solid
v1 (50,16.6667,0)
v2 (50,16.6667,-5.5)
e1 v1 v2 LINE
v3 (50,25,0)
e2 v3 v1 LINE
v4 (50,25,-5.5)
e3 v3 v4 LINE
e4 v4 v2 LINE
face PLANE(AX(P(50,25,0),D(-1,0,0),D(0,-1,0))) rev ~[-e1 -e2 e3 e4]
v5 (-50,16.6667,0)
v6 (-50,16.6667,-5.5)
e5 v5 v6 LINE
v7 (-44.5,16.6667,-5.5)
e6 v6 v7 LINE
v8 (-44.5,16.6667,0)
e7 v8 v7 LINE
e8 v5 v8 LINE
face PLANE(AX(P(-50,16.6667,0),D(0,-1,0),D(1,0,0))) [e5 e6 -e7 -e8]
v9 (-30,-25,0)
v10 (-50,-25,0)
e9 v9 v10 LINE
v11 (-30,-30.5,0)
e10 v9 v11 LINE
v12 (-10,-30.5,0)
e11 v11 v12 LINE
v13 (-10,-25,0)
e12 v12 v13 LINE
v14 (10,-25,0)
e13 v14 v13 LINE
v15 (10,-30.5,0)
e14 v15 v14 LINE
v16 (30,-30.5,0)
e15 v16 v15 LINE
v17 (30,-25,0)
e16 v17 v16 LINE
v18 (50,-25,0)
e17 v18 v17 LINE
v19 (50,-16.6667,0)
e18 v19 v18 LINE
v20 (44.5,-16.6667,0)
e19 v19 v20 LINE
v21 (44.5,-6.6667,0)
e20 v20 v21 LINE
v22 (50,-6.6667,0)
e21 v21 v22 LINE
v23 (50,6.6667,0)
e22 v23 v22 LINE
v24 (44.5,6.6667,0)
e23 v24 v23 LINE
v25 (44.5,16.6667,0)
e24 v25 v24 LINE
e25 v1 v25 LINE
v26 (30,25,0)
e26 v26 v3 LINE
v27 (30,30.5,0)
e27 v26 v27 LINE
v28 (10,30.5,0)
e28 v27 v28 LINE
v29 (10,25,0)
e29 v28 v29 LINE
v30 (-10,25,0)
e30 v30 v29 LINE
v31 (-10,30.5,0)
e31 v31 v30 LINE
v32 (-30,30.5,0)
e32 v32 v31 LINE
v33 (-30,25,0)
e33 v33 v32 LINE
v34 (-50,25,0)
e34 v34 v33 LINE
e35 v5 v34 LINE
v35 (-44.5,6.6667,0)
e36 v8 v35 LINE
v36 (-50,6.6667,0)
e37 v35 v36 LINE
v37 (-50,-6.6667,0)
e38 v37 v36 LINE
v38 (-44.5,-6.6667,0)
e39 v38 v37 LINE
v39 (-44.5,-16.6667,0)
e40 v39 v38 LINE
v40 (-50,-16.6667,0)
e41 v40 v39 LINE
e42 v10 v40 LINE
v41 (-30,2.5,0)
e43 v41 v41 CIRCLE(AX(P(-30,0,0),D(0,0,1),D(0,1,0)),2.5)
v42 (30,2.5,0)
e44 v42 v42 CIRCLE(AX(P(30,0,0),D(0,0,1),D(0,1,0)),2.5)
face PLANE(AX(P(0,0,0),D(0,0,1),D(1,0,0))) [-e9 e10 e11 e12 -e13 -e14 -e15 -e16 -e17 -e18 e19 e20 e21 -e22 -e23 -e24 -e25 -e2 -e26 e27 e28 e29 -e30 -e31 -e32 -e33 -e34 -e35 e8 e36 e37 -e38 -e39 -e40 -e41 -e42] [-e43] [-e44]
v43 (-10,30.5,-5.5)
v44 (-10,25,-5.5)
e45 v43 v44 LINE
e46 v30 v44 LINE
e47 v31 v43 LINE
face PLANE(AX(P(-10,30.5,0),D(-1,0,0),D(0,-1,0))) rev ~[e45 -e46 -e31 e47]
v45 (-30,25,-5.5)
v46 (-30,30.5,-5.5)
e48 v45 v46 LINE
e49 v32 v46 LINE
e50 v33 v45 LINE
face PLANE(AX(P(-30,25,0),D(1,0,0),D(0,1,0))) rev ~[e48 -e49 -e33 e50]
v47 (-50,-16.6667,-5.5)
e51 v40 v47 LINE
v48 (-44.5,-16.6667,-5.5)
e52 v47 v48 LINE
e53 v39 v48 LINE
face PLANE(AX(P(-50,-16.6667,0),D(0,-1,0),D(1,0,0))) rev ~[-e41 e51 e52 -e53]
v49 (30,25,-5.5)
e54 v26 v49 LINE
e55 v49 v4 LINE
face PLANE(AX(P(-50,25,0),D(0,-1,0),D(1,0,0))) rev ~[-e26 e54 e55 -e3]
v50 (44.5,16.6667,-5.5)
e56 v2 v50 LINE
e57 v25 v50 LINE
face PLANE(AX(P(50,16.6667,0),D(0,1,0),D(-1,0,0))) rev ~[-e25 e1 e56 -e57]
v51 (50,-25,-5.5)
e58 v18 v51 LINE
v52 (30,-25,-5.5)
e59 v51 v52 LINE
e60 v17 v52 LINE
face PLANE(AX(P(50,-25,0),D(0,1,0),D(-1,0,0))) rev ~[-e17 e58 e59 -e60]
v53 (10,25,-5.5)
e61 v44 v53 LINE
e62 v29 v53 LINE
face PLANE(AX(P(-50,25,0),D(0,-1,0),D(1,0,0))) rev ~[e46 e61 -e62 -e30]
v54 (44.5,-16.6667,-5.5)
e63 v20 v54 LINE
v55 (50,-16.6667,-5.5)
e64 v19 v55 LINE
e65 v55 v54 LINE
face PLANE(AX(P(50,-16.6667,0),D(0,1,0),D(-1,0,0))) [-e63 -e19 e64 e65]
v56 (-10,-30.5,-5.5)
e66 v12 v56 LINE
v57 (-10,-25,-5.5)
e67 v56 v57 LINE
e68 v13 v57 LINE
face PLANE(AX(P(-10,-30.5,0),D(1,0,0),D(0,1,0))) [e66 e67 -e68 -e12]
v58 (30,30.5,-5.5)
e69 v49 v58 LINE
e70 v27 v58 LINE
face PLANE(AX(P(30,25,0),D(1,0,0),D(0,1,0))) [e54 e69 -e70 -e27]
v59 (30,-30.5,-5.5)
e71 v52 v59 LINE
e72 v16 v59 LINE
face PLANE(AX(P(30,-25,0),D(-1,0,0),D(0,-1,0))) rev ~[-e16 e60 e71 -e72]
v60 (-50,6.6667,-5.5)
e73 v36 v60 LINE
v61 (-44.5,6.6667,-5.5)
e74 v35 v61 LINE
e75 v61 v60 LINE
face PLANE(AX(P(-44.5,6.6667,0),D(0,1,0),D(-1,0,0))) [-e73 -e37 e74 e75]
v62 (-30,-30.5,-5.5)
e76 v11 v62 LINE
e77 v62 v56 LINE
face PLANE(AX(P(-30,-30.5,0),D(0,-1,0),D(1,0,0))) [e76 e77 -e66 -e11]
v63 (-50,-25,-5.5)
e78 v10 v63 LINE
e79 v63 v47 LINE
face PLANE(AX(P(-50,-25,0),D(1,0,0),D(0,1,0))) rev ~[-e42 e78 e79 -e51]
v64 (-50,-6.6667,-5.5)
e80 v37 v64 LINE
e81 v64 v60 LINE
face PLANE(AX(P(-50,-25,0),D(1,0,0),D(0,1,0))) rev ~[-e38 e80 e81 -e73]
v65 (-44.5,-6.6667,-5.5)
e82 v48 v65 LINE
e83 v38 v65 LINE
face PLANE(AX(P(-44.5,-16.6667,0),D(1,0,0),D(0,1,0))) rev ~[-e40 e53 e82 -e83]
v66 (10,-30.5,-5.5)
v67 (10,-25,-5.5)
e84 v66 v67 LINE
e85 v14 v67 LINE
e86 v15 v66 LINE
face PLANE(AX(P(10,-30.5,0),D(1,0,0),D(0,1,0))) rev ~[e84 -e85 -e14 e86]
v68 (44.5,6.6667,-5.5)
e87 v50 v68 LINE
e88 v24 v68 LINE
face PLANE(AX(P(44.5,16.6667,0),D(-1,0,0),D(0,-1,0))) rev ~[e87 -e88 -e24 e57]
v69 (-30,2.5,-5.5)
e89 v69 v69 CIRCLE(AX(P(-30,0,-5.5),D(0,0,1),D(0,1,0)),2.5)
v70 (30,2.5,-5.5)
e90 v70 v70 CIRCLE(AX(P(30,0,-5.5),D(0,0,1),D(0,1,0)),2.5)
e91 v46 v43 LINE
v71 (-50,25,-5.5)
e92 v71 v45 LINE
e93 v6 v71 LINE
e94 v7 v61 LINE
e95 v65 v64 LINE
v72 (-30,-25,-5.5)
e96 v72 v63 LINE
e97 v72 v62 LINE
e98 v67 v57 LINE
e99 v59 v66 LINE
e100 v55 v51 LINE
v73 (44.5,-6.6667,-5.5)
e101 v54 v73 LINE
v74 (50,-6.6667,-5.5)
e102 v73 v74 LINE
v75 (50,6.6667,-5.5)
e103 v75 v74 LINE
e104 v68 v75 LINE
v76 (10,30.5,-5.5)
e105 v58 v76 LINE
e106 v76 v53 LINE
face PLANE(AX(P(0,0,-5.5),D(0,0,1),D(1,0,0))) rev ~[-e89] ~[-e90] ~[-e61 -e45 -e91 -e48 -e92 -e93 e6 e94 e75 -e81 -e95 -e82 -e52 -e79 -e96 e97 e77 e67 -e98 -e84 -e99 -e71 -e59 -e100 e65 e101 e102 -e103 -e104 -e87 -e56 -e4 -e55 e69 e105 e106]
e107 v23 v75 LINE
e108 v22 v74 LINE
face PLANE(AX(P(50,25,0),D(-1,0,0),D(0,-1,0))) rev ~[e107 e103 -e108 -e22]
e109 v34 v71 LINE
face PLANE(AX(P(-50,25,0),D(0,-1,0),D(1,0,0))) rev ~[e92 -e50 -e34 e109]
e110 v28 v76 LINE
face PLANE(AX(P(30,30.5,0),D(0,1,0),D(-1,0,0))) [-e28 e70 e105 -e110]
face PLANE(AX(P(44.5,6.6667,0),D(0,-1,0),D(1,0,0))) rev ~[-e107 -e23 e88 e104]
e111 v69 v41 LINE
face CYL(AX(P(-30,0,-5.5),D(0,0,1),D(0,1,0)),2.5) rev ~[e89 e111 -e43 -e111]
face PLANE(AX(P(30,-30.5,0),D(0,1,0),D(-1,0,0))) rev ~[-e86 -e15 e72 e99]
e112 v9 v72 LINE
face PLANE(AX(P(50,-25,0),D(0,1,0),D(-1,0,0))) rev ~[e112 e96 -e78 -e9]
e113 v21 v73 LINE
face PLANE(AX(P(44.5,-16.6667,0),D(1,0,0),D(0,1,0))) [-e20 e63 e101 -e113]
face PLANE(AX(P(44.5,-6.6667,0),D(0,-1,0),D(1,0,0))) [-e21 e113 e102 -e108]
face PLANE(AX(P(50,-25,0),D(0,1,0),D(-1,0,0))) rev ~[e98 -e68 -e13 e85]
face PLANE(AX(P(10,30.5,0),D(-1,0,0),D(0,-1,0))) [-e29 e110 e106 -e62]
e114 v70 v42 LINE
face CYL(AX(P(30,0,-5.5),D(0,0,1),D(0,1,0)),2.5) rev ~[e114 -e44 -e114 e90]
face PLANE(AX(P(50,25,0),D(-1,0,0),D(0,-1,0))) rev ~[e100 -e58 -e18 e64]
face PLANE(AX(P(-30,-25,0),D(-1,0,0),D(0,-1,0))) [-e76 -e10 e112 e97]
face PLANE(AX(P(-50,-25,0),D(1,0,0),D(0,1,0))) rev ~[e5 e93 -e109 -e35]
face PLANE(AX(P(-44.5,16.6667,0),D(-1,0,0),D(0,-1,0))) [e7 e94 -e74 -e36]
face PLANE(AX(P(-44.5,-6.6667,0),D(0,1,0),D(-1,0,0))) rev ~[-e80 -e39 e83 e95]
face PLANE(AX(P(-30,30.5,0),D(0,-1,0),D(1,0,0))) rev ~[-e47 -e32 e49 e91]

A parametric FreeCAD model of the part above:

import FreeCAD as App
import Part
import Sketcher

doc = App.newDocument("Part")
params = doc.addObject("Spreadsheet::Sheet", "Params")
for row, (alias, value) in enumerate([
    ("sketch1_width", "100 mm"),
    ("sketch1_height", "50 mm"),
    ("pad1_length", "5.5 mm"),
    ("sketch2_diameter", "5 mm"),
    ("hole_diameter", "5 mm"),
    ("sketch3_width", "20 mm"),
    ("sketch3_height", "5.5 mm"),
    ("pad2_length", "5.5 mm"),
    ("sketch4_height", "10 mm"),
    ("sketch4_width", "5.5 mm"),
], start=1):
    params.set(f"A{row}", alias)
    params.set(f"B{row}", "=" + value)
    params.setAlias(f"B{row}", alias)

body = doc.addObject("PartDesign::Body", "Body")

sketch1 = doc.addObject("Sketcher::SketchObject", "Sketch")
body.addObject(sketch1)
sketch1.AttachmentSupport = (doc.XY_Plane, [""])
sketch1.MapMode = "FlatFace"
sketch1.addGeometry(Part.LineSegment(App.Vector(-50, -25, 0), App.Vector(50, -25, 0)), False)
sketch1.addGeometry(Part.LineSegment(App.Vector(50, -25, 0), App.Vector(50, 25, 0)), False)
sketch1.addGeometry(Part.LineSegment(App.Vector(50, 25, 0), App.Vector(-50, 25, 0)), False)
sketch1.addGeometry(Part.LineSegment(App.Vector(-50, 25, 0), App.Vector(-50, -25, 0)), False)
sketch1.addConstraint(Sketcher.Constraint("Coincident", 0, 2, 1, 1))
sketch1.addConstraint(Sketcher.Constraint("Coincident", 1, 2, 2, 1))
sketch1.addConstraint(Sketcher.Constraint("Coincident", 2, 2, 3, 1))
sketch1.addConstraint(Sketcher.Constraint("Coincident", 3, 2, 0, 1))
sketch1.addConstraint(Sketcher.Constraint("Horizontal", 0))
sketch1.addConstraint(Sketcher.Constraint("Vertical", 1))
sketch1.addConstraint(Sketcher.Constraint("Horizontal", 2))
sketch1.addConstraint(Sketcher.Constraint("Vertical", 3))
sketch1.addConstraint(Sketcher.Constraint("Symmetric", 0, 2, 2, 2, -1, 1))
sketch1.addConstraint(Sketcher.Constraint("DistanceX", 0, 1, 0, 2, 100.0))
sketch1.addConstraint(Sketcher.Constraint("DistanceY", 1, 1, 1, 2, 50.0))
sketch1.setExpression("Constraints[9]", "Params.sketch1_width")
sketch1.setExpression("Constraints[10]", "Params.sketch1_height")
pad1 = doc.addObject("PartDesign::Pad", "Pad")
body.addObject(pad1)
pad1.Profile = sketch1
pad1.setExpression("Length", "Params.pad1_length")
pad1.Reversed = True

sketch2 = doc.addObject("Sketcher::SketchObject", "Sketch001")
body.addObject(sketch2)
sketch2.AttachmentSupport = (doc.XY_Plane, [""])
sketch2.MapMode = "FlatFace"
sketch2.AttachmentOffset = App.Placement(App.Vector(0, 0, -5.5), App.Rotation())
sketch2.addGeometry(Part.Circle(App.Vector(30, 0, 0), App.Vector(0, 0, 1), 2.5), False)
sketch2.addGeometry(Part.Circle(App.Vector(-30, 0, 0), App.Vector(0, 0, 1), 2.5), False)
sketch2.addConstraint(Sketcher.Constraint("Equal", 0, 1))
sketch2.addConstraint(Sketcher.Constraint("Symmetric", 0, 3, 1, 3, -1, 1))
sketch2.addConstraint(Sketcher.Constraint("PointOnObject", 0, 3, -1))
sketch2.addConstraint(Sketcher.Constraint("Diameter", 0, 5.0))
sketch2.addConstraint(Sketcher.Constraint("DistanceX", -1, 1, 0, 3, 30.0))
sketch2.setExpression("Constraints[3]", "Params.sketch2_diameter")
doc.recompute()
hole = doc.addObject("PartDesign::Hole", "Hole")
body.addObject(hole)
hole.Profile = sketch2
hole.ThreadType = "None"
hole.setExpression("Diameter", "Params.hole_diameter")
hole.DepthType = "ThroughAll"
hole.Reversed = True

sketch3 = doc.addObject("Sketcher::SketchObject", "Sketch002")
body.addObject(sketch3)
sketch3.AttachmentSupport = (doc.XY_Plane, [""])
sketch3.MapMode = "FlatFace"
sketch3.addGeometry(Part.LineSegment(App.Vector(-30, 30.5, 0), App.Vector(-30, 25, 0)), False)
sketch3.addGeometry(Part.LineSegment(App.Vector(-30, 25, 0), App.Vector(-10, 25, 0)), False)
sketch3.addGeometry(Part.LineSegment(App.Vector(-10, 25, 0), App.Vector(-10, 30.5, 0)), False)
sketch3.addGeometry(Part.LineSegment(App.Vector(-10, 30.5, 0), App.Vector(-30, 30.5, 0)), False)
sketch3.addGeometry(Part.LineSegment(App.Vector(10, 30.5, 0), App.Vector(10, 25, 0)), False)
sketch3.addGeometry(Part.LineSegment(App.Vector(10, 25, 0), App.Vector(30, 25, 0)), False)
sketch3.addGeometry(Part.LineSegment(App.Vector(30, 25, 0), App.Vector(30, 30.5, 0)), False)
sketch3.addGeometry(Part.LineSegment(App.Vector(30, 30.5, 0), App.Vector(10, 30.5, 0)), False)
sketch3.addGeometry(Part.LineSegment(App.Vector(-10, -25, 0), App.Vector(-30, -25, 0)), False)
sketch3.addGeometry(Part.LineSegment(App.Vector(-30, -25, 0), App.Vector(-30, -30.5, 0)), False)
sketch3.addGeometry(Part.LineSegment(App.Vector(-30, -30.5, 0), App.Vector(-10, -30.5, 0)), False)
sketch3.addGeometry(Part.LineSegment(App.Vector(-10, -30.5, 0), App.Vector(-10, -25, 0)), False)
sketch3.addGeometry(Part.LineSegment(App.Vector(30, -30.5, 0), App.Vector(30, -25, 0)), False)
sketch3.addGeometry(Part.LineSegment(App.Vector(30, -25, 0), App.Vector(10, -25, 0)), False)
sketch3.addGeometry(Part.LineSegment(App.Vector(10, -25, 0), App.Vector(10, -30.5, 0)), False)
sketch3.addGeometry(Part.LineSegment(App.Vector(10, -30.5, 0), App.Vector(30, -30.5, 0)), False)
sketch3.addConstraint(Sketcher.Constraint("Coincident", 0, 2, 1, 1))
sketch3.addConstraint(Sketcher.Constraint("Coincident", 1, 2, 2, 1))
sketch3.addConstraint(Sketcher.Constraint("Coincident", 2, 2, 3, 1))
sketch3.addConstraint(Sketcher.Constraint("Coincident", 3, 2, 0, 1))
sketch3.addConstraint(Sketcher.Constraint("Coincident", 4, 2, 5, 1))
sketch3.addConstraint(Sketcher.Constraint("Coincident", 5, 2, 6, 1))
sketch3.addConstraint(Sketcher.Constraint("Coincident", 6, 2, 7, 1))
sketch3.addConstraint(Sketcher.Constraint("Coincident", 7, 2, 4, 1))
sketch3.addConstraint(Sketcher.Constraint("Coincident", 8, 2, 9, 1))
sketch3.addConstraint(Sketcher.Constraint("Coincident", 9, 2, 10, 1))
sketch3.addConstraint(Sketcher.Constraint("Coincident", 10, 2, 11, 1))
sketch3.addConstraint(Sketcher.Constraint("Coincident", 11, 2, 8, 1))
sketch3.addConstraint(Sketcher.Constraint("Coincident", 12, 2, 13, 1))
sketch3.addConstraint(Sketcher.Constraint("Coincident", 13, 2, 14, 1))
sketch3.addConstraint(Sketcher.Constraint("Coincident", 14, 2, 15, 1))
sketch3.addConstraint(Sketcher.Constraint("Coincident", 15, 2, 12, 1))
sketch3.addConstraint(Sketcher.Constraint("Vertical", 0))
sketch3.addConstraint(Sketcher.Constraint("Horizontal", 1))
sketch3.addConstraint(Sketcher.Constraint("Vertical", 2))
sketch3.addConstraint(Sketcher.Constraint("Horizontal", 3))
sketch3.addConstraint(Sketcher.Constraint("Vertical", 4))
sketch3.addConstraint(Sketcher.Constraint("Horizontal", 5))
sketch3.addConstraint(Sketcher.Constraint("Vertical", 6))
sketch3.addConstraint(Sketcher.Constraint("Horizontal", 7))
sketch3.addConstraint(Sketcher.Constraint("Horizontal", 8))
sketch3.addConstraint(Sketcher.Constraint("Vertical", 9))
sketch3.addConstraint(Sketcher.Constraint("Horizontal", 10))
sketch3.addConstraint(Sketcher.Constraint("Vertical", 11))
sketch3.addConstraint(Sketcher.Constraint("Vertical", 12))
sketch3.addConstraint(Sketcher.Constraint("Horizontal", 13))
sketch3.addConstraint(Sketcher.Constraint("Vertical", 14))
sketch3.addConstraint(Sketcher.Constraint("Horizontal", 15))
sketch3.addConstraint(Sketcher.Constraint("Symmetric", 5, 2, 8, 2, -1, 1))
sketch3.addConstraint(Sketcher.Constraint("Symmetric", 7, 2, 10, 2, -1, 1))
sketch3.addConstraint(Sketcher.Constraint("Symmetric", 0, 2, 12, 2, -1, 1))
sketch3.addConstraint(Sketcher.Constraint("Symmetric", 2, 2, 14, 2, -1, 1))
sketch3.addConstraint(Sketcher.Constraint("Symmetric", 1, 2, 4, 2, -2))
sketch3.addConstraint(Sketcher.Constraint("Symmetric", 3, 2, 6, 2, -2))
sketch3.addConstraint(Sketcher.Constraint("DistanceX", 1, 1, 1, 2, 20.0))
sketch3.addConstraint(Sketcher.Constraint("DistanceY", 0, 2, 0, 1, 5.5))
sketch3.addConstraint(Sketcher.Constraint("DistanceX", 1, 2, 4, 2, 20.0))
sketch3.addConstraint(Sketcher.Constraint("DistanceY", -1, 1, 0, 2, 25.0))
sketch3.setExpression("Constraints[38]", "Params.sketch3_width")
sketch3.setExpression("Constraints[39]", "Params.sketch3_height")
pad2 = doc.addObject("PartDesign::Pad", "Pad001")
body.addObject(pad2)
pad2.Profile = sketch3
pad2.setExpression("Length", "Params.pad2_length")
pad2.Reversed = True

sketch4 = doc.addObject("Sketcher::SketchObject", "Sketch003")
body.addObject(sketch4)
sketch4.AttachmentSupport = (doc.XY_Plane, [""])
sketch4.MapMode = "FlatFace"
sketch4.addGeometry(Part.LineSegment(App.Vector(-50, 16.6667, 0), App.Vector(-50, 6.6667, 0)), False)
sketch4.addGeometry(Part.LineSegment(App.Vector(-50, 6.6667, 0), App.Vector(-44.5, 6.6667, 0)), False)
sketch4.addGeometry(Part.LineSegment(App.Vector(-44.5, 6.6667, 0), App.Vector(-44.5, 16.6667, 0)), False)
sketch4.addGeometry(Part.LineSegment(App.Vector(-44.5, 16.6667, 0), App.Vector(-50, 16.6667, 0)), False)
sketch4.addGeometry(Part.LineSegment(App.Vector(-50, -6.6667, 0), App.Vector(-50, -16.6667, 0)), False)
sketch4.addGeometry(Part.LineSegment(App.Vector(-50, -16.6667, 0), App.Vector(-44.5, -16.6667, 0)), False)
sketch4.addGeometry(Part.LineSegment(App.Vector(-44.5, -16.6667, 0), App.Vector(-44.5, -6.6667, 0)), False)
sketch4.addGeometry(Part.LineSegment(App.Vector(-44.5, -6.6667, 0), App.Vector(-50, -6.6667, 0)), False)
sketch4.addGeometry(Part.LineSegment(App.Vector(50, 6.6667, 0), App.Vector(50, 16.6667, 0)), False)
sketch4.addGeometry(Part.LineSegment(App.Vector(50, 16.6667, 0), App.Vector(44.5, 16.6667, 0)), False)
sketch4.addGeometry(Part.LineSegment(App.Vector(44.5, 16.6667, 0), App.Vector(44.5, 6.6667, 0)), False)
sketch4.addGeometry(Part.LineSegment(App.Vector(44.5, 6.6667, 0), App.Vector(50, 6.6667, 0)), False)
sketch4.addGeometry(Part.LineSegment(App.Vector(44.5, -6.6667, 0), App.Vector(44.5, -16.6667, 0)), False)
sketch4.addGeometry(Part.LineSegment(App.Vector(44.5, -16.6667, 0), App.Vector(50, -16.6667, 0)), False)
sketch4.addGeometry(Part.LineSegment(App.Vector(50, -16.6667, 0), App.Vector(50, -6.6667, 0)), False)
sketch4.addGeometry(Part.LineSegment(App.Vector(50, -6.6667, 0), App.Vector(44.5, -6.6667, 0)), False)
sketch4.addConstraint(Sketcher.Constraint("Coincident", 0, 2, 1, 1))
sketch4.addConstraint(Sketcher.Constraint("Coincident", 1, 2, 2, 1))
sketch4.addConstraint(Sketcher.Constraint("Coincident", 2, 2, 3, 1))
sketch4.addConstraint(Sketcher.Constraint("Coincident", 3, 2, 0, 1))
sketch4.addConstraint(Sketcher.Constraint("Coincident", 4, 2, 5, 1))
sketch4.addConstraint(Sketcher.Constraint("Coincident", 5, 2, 6, 1))
sketch4.addConstraint(Sketcher.Constraint("Coincident", 6, 2, 7, 1))
sketch4.addConstraint(Sketcher.Constraint("Coincident", 7, 2, 4, 1))
sketch4.addConstraint(Sketcher.Constraint("Coincident", 8, 2, 9, 1))
sketch4.addConstraint(Sketcher.Constraint("Coincident", 9, 2, 10, 1))
sketch4.addConstraint(Sketcher.Constraint("Coincident", 10, 2, 11, 1))
sketch4.addConstraint(Sketcher.Constraint("Coincident", 11, 2, 8, 1))
sketch4.addConstraint(Sketcher.Constraint("Coincident", 12, 2, 13, 1))
sketch4.addConstraint(Sketcher.Constraint("Coincident", 13, 2, 14, 1))
sketch4.addConstraint(Sketcher.Constraint("Coincident", 14, 2, 15, 1))
sketch4.addConstraint(Sketcher.Constraint("Coincident", 15, 2, 12, 1))
sketch4.addConstraint(Sketcher.Constraint("Vertical", 0))
sketch4.addConstraint(Sketcher.Constraint("Horizontal", 1))
sketch4.addConstraint(Sketcher.Constraint("Vertical", 2))
sketch4.addConstraint(Sketcher.Constraint("Horizontal", 3))
sketch4.addConstraint(Sketcher.Constraint("Vertical", 4))
sketch4.addConstraint(Sketcher.Constraint("Horizontal", 5))
sketch4.addConstraint(Sketcher.Constraint("Vertical", 6))
sketch4.addConstraint(Sketcher.Constraint("Horizontal", 7))
sketch4.addConstraint(Sketcher.Constraint("Vertical", 8))
sketch4.addConstraint(Sketcher.Constraint("Horizontal", 9))
sketch4.addConstraint(Sketcher.Constraint("Vertical", 10))
sketch4.addConstraint(Sketcher.Constraint("Horizontal", 11))
sketch4.addConstraint(Sketcher.Constraint("Vertical", 12))
sketch4.addConstraint(Sketcher.Constraint("Horizontal", 13))
sketch4.addConstraint(Sketcher.Constraint("Vertical", 14))
sketch4.addConstraint(Sketcher.Constraint("Horizontal", 15))
sketch4.addConstraint(Sketcher.Constraint("Symmetric", 4, 2, 8, 2, -1, 1))
sketch4.addConstraint(Sketcher.Constraint("Symmetric", 6, 2, 10, 2, -1, 1))
sketch4.addConstraint(Sketcher.Constraint("Symmetric", 2, 2, 12, 2, -1, 1))
sketch4.addConstraint(Sketcher.Constraint("Symmetric", 0, 2, 14, 2, -1, 1))
sketch4.addConstraint(Sketcher.Constraint("Symmetric", 3, 2, 8, 2, -2))
sketch4.addConstraint(Sketcher.Constraint("Symmetric", 1, 2, 10, 2, -2))
sketch4.addConstraint(Sketcher.Constraint("DistanceY", 0, 2, 0, 1, 10.0))
sketch4.addConstraint(Sketcher.Constraint("DistanceX", 1, 1, 1, 2, 5.5))
sketch4.addConstraint(Sketcher.Constraint("DistanceX", 0, 2, -1, 1, 50.0))
sketch4.addConstraint(Sketcher.Constraint("DistanceY", -1, 1, 0, 2, 6.6667))
sketch4.setExpression("Constraints[38]", "Params.sketch4_height")
sketch4.setExpression("Constraints[39]", "Params.sketch4_width")
pocket1 = doc.addObject("PartDesign::Pocket", "Pocket")
body.addObject(pocket1)
pocket1.Profile = sketch4
pocket1.Type = "ThroughAll"

doc.recompute()
